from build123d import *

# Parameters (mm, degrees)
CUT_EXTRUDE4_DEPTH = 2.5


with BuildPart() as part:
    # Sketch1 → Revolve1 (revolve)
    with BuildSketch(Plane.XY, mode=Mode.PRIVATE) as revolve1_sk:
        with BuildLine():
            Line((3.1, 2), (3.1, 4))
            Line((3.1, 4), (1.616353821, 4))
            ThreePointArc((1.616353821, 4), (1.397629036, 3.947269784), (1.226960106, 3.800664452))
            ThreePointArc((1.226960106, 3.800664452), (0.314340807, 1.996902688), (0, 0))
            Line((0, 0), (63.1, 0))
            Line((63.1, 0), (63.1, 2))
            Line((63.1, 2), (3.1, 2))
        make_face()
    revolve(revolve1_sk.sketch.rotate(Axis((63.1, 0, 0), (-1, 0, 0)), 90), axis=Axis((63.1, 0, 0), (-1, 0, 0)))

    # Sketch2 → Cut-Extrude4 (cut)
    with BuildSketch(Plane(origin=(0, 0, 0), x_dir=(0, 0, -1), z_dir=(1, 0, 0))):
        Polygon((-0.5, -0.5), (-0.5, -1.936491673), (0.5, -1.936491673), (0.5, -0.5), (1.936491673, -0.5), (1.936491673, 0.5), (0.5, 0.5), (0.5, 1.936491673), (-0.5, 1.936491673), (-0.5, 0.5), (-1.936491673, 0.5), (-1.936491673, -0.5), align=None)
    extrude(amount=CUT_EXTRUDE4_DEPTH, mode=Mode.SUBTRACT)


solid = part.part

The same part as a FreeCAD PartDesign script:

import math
import FreeCAD as App
import Part
import Sketcher
from FreeCAD import Vector
Q = App.Units.Quantity

doc = App.newDocument("Part")
body = doc.addObject("PartDesign::Body", "Body")

sketch1 = body.newObject("Sketcher::SketchObject", "Sketch")
sketch1.AttachmentSupport = (doc.getObject("XY_Plane"), [""])
sketch1.MapMode = "FlatFace"
sketch1.addGeometry(Part.LineSegment(Vector(3.1, 2, 0), Vector(3.1, 4, 0)), False)
sketch1.addGeometry(Part.LineSegment(Vector(3.1, 4, 0), Vector(1.62, 4, 0)), False)
sketch1.addGeometry(Part.ArcOfCircle(Part.Circle(Vector(1.62, 3.52, 0), Vector(0, 0, 1), 0.48), math.radians(90), math.radians(144)), False)
sketch1.addGeometry(Part.ArcOfCircle(Part.Circle(Vector(6.5, 0, 0), Vector(0, 0, 1), 6.5), math.radians(144), math.radians(180)), False)
sketch1.addGeometry(Part.LineSegment(Vector(0, 0, 0), Vector(63.1, 0, 0)), False)
sketch1.addGeometry(Part.LineSegment(Vector(63.1, 0, 0), Vector(63.1, 2, 0)), False)
sketch1.addGeometry(Part.LineSegment(Vector(63.1, 2, 0), Vector(3.1, 2, 0)), False)
sketch1.addConstraint(Sketcher.Constraint("Coincident", 0, 2, 1, 1))
sketch1.addConstraint(Sketcher.Constraint("Tangent", 1, 2, 2, 1))
sketch1.addConstraint(Sketcher.Constraint("Tangent", 2, 2, 3, 1))
sketch1.addConstraint(Sketcher.Constraint("Coincident", 3, 2, 4, 1))
sketch1.addConstraint(Sketcher.Constraint("Coincident", 4, 2, 5, 1))
sketch1.addConstraint(Sketcher.Constraint("Coincident", 5, 2, 6, 1))
sketch1.addConstraint(Sketcher.Constraint("Coincident", 6, 2, 0, 1))
sketch1.addConstraint(Sketcher.Constraint("Vertical", 0))
sketch1.addConstraint(Sketcher.Constraint("Horizontal", 1))
sketch1.addConstraint(Sketcher.Constraint("Horizontal", 4))
sketch1.addConstraint(Sketcher.Constraint("Vertical", 5))
sketch1.addConstraint(Sketcher.Constraint("Horizontal", 6))
sketch1.addConstraint(Sketcher.Constraint("Coincident", 3, 2, -1, 1))
sketch1.addConstraint(Sketcher.Constraint("PointOnObject", 3, 3, -1))
sketch1.addConstraint(Sketcher.Constraint("Equal", 0, 5))
sketch1.addConstraint(Sketcher.Constraint("Radius", 3, Q("6.5 mm")))
sketch1.addConstraint(Sketcher.Constraint("DistanceX", 6, 2, 6, 1, Q("60 mm")))
sketch1.addConstraint(Sketcher.Constraint("DistanceY", 0, 1, 0, 2, Q("2 mm")))
sketch1.addConstraint(Sketcher.Constraint("Radius", 2, Q("0.48 mm")))
sketch1.addConstraint(Sketcher.Constraint("DistanceX", 4, 1, 4, 2, Q("63.1 mm")))
revolution = body.newObject("PartDesign::Revolution", "Revolution")
revolution.Profile = sketch1
revolution.ReferenceAxis = (sketch1, ["H_Axis"])
revolution.Angle = 360

sketch2 = body.newObject("Sketcher::SketchObject", "Sketch001")
sketch2.AttachmentSupport = (doc.getObject("YZ_Plane"), [""])
sketch2.MapMode = "FlatFace"
sketch2.addGeometry(Part.LineSegment(Vector(-0.5, 0.5, 0), Vector(-1.9, 0.5, 0)), False)
sketch2.addGeometry(Part.LineSegment(Vector(-1.9, 0.5, 0), Vector(-1.9, -0.5, 0)), False)
sketch2.addGeometry(Part.LineSegment(Vector(-1.9, -0.5, 0), Vector(-0.5, -0.5, 0)), False)
sketch2.addGeometry(Part.LineSegment(Vector(-0.5, -0.5, 0), Vector(-0.5, -1.9, 0)), False)
sketch2.addGeometry(Part.LineSegment(Vector(-0.5, -1.9, 0), Vector(0.5, -1.9, 0)), False)
sketch2.addGeometry(Part.LineSegment(Vector(0.5, -1.9, 0), Vector(0.5, -0.5, 0)), False)
sketch2.addGeometry(Part.LineSegment(Vector(0.5, -0.5, 0), Vector(1.9, -0.5, 0)), False)
sketch2.addGeometry(Part.LineSegment(Vector(1.9, -0.5, 0), Vector(1.9, 0.5, 0)), False)
sketch2.addGeometry(Part.LineSegment(Vector(1.9, 0.5, 0), Vector(0.5, 0.5, 0)), False)
sketch2.addGeometry(Part.LineSegment(Vector(0.5, 0.5, 0), Vector(0.5, 1.9, 0)), False)
sketch2.addGeometry(Part.LineSegment(Vector(0.5, 1.9, 0), Vector(-0.5, 1.9, 0)), False)
sketch2.addGeometry(Part.LineSegment(Vector(-0.5, 1.9, 0), Vector(-0.5, 0.5, 0)), False)
sketch2.addConstraint(Sketcher.Constraint("Coincident", 0, 2, 1, 1))
sketch2.addConstraint(Sketcher.Constraint("Coincident", 1, 2, 2, 1))
sketch2.addConstraint(Sketcher.Constraint("Coincident", 2, 2, 3, 1))
sketch2.addConstraint(Sketcher.Constraint("Coincident", 3, 2, 4, 1))
sketch2.addConstraint(Sketcher.Constraint("Coincident", 4, 2, 5, 1))
sketch2.addConstraint(Sketcher.Constraint("Coincident", 5, 2, 6, 1))
sketch2.addConstraint(Sketcher.Constraint("Coincident", 6, 2, 7, 1))
sketch2.addConstraint(Sketcher.Constraint("Coincident", 7, 2, 8, 1))
sketch2.addConstraint(Sketcher.Constraint("Coincident", 8, 2, 9, 1))
sketch2.addConstraint(Sketcher.Constraint("Coincident", 9, 2, 10, 1))
sketch2.addConstraint(Sketcher.Constraint("Coincident", 10, 2, 11, 1))
sketch2.addConstraint(Sketcher.Constraint("Coincident", 11, 2, 0, 1))
sketch2.addConstraint(Sketcher.Constraint("Horizontal", 0))
sketch2.addConstraint(Sketcher.Constraint("Vertical", 1))
sketch2.addConstraint(Sketcher.Constraint("Horizontal", 2))
sketch2.addConstraint(Sketcher.Constraint("Vertical", 3))
sketch2.addConstraint(Sketcher.Constraint("Horizontal", 4))
sketch2.addConstraint(Sketcher.Constraint("Vertical", 5))
sketch2.addConstraint(Sketcher.Constraint("Horizontal", 6))
sketch2.addConstraint(Sketcher.Constraint("Vertical", 7))
sketch2.addConstraint(Sketcher.Constraint("Horizontal", 8))
sketch2.addConstraint(Sketcher.Constraint("Vertical", 9))
sketch2.addConstraint(Sketcher.Constraint("Horizontal", 10))
sketch2.addConstraint(Sketcher.Constraint("Vertical", 11))
sketch2.addConstraint(Sketcher.Constraint("Symmetric", 0, 2, 6, 2, -1, 1))
sketch2.addConstraint(Sketcher.Constraint("Symmetric", 2, 2, 8, 2, -1, 1))
sketch2.addConstraint(Sketcher.Constraint("Symmetric", 4, 2, 10, 2, -1, 1))
sketch2.addConstraint(Sketcher.Constraint("Symmetric", 2, 2, 5, 2, -2))
sketch2.addConstraint(Sketcher.Constraint("Equal", 10, 1))
sketch2.addConstraint(Sketcher.Constraint("Equal", 8, 3))
sketch2.addConstraint(Sketcher.Constraint("DistanceX", 4, 1, 4, 2, Q("1 mm")))
sketch2.addConstraint(Sketcher.Constraint("DistanceX", 0, 2, 0, 1, Q("1.436492 mm")))
pocket1 = body.newObject("PartDesign::Pocket", "Pocket")
pocket1.Profile = sketch2
pocket1.Length = 2.5
pocket1.Reversed = True

doc.recompute()
